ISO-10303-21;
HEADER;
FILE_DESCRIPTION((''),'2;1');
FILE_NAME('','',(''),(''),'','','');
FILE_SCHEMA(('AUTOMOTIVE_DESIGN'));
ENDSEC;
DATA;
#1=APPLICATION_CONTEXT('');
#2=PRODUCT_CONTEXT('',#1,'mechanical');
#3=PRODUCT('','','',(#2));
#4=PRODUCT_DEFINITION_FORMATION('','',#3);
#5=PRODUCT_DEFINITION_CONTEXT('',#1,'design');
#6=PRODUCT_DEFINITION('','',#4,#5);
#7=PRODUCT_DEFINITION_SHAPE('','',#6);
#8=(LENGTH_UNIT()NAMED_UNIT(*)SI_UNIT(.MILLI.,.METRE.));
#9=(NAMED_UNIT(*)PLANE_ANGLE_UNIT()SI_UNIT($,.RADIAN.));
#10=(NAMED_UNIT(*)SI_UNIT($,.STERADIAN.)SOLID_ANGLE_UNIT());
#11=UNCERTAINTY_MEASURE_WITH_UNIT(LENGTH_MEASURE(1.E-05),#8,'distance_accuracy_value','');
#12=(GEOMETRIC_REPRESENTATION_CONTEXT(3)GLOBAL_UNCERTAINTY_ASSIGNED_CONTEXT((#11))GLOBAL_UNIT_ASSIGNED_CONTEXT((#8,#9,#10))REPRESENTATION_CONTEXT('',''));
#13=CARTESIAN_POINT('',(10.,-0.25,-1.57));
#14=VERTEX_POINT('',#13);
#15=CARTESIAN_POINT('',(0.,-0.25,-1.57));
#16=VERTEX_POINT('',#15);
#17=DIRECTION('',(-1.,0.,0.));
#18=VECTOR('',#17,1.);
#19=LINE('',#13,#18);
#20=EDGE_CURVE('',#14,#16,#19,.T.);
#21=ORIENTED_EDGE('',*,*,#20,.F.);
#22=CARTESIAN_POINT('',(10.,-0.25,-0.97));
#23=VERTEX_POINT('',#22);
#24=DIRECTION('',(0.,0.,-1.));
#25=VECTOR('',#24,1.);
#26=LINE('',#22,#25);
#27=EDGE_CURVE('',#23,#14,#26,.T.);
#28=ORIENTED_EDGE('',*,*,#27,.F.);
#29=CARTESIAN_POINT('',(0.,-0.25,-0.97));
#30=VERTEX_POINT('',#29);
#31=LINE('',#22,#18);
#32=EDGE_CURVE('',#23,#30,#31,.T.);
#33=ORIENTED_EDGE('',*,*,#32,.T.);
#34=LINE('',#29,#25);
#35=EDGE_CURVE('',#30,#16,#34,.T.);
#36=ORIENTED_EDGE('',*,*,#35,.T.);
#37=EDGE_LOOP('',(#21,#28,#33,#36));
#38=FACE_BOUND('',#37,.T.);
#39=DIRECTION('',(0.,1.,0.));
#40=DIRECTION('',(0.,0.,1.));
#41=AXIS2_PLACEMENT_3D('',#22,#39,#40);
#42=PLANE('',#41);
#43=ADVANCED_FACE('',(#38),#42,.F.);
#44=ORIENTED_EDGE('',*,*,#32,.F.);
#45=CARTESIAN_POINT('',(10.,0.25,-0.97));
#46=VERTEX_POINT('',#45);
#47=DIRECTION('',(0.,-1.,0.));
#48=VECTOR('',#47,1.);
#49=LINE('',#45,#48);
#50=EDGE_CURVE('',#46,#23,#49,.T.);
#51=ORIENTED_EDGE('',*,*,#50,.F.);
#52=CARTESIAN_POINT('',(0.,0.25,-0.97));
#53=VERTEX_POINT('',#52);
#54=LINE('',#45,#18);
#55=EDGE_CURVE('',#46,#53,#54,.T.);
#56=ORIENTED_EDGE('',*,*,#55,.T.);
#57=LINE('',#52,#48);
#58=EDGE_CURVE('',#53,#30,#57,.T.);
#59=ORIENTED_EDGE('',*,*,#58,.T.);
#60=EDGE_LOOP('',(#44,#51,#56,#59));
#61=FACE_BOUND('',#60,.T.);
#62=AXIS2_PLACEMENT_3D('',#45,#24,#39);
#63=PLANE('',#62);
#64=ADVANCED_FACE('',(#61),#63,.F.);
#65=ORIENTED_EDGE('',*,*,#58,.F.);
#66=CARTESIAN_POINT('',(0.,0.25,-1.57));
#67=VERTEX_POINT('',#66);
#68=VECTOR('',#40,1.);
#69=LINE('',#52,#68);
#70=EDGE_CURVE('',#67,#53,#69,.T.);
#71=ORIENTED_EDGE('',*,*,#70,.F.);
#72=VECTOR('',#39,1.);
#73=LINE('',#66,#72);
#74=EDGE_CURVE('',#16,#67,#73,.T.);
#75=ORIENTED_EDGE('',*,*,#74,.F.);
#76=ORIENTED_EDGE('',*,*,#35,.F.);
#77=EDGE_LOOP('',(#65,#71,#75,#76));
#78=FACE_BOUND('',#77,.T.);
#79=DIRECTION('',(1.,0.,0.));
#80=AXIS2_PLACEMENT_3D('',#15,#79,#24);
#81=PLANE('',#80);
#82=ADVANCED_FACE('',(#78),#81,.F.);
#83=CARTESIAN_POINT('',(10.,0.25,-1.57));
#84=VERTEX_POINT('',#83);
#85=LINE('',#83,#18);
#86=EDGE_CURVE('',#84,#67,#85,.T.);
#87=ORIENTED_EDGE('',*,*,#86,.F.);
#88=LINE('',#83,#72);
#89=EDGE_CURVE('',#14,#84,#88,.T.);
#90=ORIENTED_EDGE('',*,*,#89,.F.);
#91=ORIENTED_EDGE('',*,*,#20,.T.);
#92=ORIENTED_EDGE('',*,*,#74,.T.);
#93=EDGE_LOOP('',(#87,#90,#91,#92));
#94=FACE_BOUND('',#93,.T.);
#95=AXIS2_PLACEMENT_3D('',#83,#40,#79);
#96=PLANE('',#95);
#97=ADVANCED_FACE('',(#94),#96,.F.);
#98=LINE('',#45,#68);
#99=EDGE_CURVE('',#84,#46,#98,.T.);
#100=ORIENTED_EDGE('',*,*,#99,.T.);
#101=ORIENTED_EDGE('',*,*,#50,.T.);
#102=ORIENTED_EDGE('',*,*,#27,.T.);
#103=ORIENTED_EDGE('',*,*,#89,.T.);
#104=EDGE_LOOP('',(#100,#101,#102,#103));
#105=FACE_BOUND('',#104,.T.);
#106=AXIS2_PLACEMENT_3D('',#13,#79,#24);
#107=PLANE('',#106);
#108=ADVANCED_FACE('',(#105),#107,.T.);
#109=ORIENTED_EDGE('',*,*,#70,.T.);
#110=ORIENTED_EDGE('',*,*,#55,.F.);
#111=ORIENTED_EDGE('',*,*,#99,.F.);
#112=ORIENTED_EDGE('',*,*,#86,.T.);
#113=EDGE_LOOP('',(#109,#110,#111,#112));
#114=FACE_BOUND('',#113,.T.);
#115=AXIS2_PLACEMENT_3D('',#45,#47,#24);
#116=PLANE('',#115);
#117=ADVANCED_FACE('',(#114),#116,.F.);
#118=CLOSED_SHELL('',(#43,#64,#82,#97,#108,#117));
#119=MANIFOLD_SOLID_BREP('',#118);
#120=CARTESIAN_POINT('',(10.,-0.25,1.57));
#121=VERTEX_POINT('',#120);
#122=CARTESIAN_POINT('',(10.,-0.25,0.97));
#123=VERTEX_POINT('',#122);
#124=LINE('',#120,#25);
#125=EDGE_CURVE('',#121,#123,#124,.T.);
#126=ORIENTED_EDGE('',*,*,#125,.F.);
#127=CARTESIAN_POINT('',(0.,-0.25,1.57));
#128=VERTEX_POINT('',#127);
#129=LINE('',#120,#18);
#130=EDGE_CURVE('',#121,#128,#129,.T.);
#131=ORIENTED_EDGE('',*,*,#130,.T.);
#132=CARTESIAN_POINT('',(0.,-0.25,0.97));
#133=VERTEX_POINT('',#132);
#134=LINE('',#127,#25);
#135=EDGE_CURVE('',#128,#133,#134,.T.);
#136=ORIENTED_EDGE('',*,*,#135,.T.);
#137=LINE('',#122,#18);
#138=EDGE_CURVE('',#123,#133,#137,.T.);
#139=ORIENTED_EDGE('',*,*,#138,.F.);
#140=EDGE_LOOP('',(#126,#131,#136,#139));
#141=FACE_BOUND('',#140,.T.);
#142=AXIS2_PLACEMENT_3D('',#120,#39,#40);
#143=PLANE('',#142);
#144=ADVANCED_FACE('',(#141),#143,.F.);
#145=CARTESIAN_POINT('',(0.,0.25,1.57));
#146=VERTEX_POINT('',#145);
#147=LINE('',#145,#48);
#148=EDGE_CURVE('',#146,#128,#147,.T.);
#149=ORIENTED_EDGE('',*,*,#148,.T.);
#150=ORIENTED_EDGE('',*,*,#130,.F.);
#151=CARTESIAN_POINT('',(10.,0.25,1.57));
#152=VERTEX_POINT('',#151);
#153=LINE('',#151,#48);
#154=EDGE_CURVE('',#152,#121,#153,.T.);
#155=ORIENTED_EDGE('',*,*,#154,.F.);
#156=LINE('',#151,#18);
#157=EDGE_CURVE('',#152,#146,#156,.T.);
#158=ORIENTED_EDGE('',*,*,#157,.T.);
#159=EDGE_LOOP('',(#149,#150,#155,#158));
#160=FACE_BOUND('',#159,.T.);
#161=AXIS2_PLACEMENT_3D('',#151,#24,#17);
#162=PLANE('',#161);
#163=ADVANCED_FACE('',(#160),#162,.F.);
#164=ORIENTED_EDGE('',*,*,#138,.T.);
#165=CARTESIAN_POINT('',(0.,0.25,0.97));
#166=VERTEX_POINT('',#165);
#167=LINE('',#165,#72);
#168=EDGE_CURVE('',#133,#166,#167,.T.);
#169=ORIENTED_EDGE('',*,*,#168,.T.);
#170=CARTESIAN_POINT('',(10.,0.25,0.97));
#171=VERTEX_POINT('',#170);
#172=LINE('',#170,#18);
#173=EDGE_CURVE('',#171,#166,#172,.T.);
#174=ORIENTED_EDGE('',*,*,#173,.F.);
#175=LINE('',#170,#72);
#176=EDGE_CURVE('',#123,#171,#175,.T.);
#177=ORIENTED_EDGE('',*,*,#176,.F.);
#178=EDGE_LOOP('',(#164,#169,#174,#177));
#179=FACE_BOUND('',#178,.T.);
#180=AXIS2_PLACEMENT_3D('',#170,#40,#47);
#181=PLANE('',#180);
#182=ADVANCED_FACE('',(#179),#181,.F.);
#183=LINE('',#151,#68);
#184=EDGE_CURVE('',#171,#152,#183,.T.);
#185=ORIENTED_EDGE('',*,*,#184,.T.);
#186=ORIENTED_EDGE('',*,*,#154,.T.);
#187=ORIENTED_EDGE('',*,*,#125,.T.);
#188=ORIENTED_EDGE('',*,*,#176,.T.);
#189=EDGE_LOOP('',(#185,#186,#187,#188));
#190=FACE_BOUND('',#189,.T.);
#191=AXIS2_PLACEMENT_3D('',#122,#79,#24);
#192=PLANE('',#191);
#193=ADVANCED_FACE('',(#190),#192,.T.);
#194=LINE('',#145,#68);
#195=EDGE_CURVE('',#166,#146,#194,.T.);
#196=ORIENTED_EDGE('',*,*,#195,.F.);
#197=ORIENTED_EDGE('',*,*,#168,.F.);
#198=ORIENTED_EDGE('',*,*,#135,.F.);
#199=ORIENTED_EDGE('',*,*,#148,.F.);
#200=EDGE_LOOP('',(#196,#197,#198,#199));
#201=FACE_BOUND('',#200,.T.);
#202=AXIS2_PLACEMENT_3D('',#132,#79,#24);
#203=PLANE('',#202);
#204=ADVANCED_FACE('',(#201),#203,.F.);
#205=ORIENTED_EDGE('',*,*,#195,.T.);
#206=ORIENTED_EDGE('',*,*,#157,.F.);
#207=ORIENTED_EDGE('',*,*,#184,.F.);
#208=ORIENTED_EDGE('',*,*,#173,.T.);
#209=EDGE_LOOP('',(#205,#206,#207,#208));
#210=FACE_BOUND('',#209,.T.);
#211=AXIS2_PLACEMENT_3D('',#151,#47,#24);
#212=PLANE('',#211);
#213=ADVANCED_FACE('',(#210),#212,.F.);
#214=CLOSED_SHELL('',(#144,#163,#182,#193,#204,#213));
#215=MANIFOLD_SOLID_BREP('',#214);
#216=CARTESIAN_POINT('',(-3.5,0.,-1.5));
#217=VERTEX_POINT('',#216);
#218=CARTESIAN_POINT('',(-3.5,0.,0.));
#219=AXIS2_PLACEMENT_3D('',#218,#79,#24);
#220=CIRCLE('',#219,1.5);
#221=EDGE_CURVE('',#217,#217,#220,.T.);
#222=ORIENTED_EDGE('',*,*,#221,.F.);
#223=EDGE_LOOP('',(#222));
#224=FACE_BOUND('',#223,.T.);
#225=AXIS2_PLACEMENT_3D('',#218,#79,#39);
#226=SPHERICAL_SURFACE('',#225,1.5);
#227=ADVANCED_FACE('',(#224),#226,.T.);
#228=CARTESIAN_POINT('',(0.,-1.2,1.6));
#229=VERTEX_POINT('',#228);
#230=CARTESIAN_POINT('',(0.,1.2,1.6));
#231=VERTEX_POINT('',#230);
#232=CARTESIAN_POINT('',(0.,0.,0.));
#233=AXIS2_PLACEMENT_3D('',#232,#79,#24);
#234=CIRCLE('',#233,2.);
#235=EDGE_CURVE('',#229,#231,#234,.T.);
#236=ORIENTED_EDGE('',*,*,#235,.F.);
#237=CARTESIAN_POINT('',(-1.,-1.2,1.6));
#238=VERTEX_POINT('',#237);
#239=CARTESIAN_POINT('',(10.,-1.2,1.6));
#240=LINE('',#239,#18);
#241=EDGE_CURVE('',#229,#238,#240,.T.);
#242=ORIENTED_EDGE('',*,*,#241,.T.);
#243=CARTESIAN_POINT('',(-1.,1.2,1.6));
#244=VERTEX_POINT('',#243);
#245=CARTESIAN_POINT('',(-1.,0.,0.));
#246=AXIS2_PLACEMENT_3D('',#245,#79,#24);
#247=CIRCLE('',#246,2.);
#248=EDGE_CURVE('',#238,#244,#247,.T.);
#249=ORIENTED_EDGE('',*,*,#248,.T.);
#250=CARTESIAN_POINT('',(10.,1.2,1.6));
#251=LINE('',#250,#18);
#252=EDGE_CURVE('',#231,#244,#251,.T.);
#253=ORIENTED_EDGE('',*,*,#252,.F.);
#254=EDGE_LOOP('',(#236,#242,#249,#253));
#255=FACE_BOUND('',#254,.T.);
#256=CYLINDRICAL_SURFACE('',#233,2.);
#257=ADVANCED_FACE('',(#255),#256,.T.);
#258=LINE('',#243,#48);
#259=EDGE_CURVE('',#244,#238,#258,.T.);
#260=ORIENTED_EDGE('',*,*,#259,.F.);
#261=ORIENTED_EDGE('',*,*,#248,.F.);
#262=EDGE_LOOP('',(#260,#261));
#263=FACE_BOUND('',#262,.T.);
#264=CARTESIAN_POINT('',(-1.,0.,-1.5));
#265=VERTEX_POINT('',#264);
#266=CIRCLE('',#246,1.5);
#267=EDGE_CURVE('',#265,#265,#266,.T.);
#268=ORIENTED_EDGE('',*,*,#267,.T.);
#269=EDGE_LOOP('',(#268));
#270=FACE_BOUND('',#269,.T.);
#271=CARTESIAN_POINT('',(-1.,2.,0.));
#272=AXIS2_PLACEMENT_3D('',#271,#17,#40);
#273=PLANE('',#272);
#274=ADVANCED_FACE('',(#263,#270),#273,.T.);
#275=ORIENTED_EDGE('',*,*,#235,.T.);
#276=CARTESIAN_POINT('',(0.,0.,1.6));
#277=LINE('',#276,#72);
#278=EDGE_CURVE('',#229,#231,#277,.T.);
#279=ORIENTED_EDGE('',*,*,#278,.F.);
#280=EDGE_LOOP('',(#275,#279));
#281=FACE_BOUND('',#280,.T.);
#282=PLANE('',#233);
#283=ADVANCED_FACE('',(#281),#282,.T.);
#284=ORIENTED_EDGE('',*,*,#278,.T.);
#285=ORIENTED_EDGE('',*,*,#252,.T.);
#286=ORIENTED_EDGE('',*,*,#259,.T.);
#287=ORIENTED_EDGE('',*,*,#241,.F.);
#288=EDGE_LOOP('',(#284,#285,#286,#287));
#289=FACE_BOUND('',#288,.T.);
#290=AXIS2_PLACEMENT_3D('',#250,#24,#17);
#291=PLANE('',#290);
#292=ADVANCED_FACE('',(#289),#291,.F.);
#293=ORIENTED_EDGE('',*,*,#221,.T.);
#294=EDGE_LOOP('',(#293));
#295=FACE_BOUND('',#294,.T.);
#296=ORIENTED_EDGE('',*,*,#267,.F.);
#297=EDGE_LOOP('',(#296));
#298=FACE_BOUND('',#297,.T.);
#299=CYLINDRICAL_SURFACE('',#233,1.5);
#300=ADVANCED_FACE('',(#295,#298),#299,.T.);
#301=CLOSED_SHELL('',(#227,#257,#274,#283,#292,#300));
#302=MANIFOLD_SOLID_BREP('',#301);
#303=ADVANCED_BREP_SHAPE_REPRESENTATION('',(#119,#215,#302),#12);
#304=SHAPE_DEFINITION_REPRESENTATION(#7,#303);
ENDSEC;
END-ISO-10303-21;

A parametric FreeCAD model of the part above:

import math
import FreeCAD as App
import Part
import Sketcher

V = App.Vector
Q = App.Units.Quantity


def add_polygon(sketch, points):
    """Adds a closed chain of lines whose ends are joined by coincident constraints."""
    first, n = sketch.GeometryCount, len(points)
    for a, b in zip(points, points[1:] + points[:1]):
        sketch.addGeometry(Part.LineSegment(App.Vector(*a, 0), App.Vector(*b, 0)), False)
    for i in range(n):
        sketch.addConstraint(Sketcher.Constraint("Coincident", first + i, 2, first + (i + 1) % n, 1))

doc = App.newDocument("Part")
body = doc.addObject("PartDesign::Body", "Body")

# Sketch on XY plane
sketch1 = doc.addObject("Sketcher::SketchObject", "Sketch")
body.addObject(sketch1)
sketch1.AttachmentSupport = (doc.XY_Plane, [""])
sketch1.MapMode = "FlatFace"
sketch1.addGeometry(Part.LineSegment(V(0, 0, 0), V(0, 2, 0)), False)
sketch1.addGeometry(Part.LineSegment(V(0, 2, 0), V(-1, 2, 0)), False)
sketch1.addGeometry(Part.LineSegment(V(-1, 2, 0), V(-1, 1.5, 0)), False)
sketch1.addGeometry(Part.LineSegment(V(-1, 1.5, 0), V(-3.5, 1.5, 0)), False)
sketch1.addGeometry(Part.ArcOfCircle(Part.Circle(V(-3.5, 0, 0), V(0, 0, 1), 1.5), math.radians(90), math.radians(180)), False)
sketch1.addGeometry(Part.LineSegment(V(-5, 0, 0), V(0, 0, 0)), False)
sketch1.addConstraint(Sketcher.Constraint("Coincident", 0, 2, 1, 1))
sketch1.addConstraint(Sketcher.Constraint("Coincident", 1, 2, 2, 1))
sketch1.addConstraint(Sketcher.Constraint("Coincident", 2, 2, 3, 1))
sketch1.addConstraint(Sketcher.Constraint("Tangent", 3, 2, 4, 1))
sketch1.addConstraint(Sketcher.Constraint("Coincident", 4, 2, 5, 1))
sketch1.addConstraint(Sketcher.Constraint("Coincident", 5, 2, 0, 1))
sketch1.addConstraint(Sketcher.Constraint("Vertical", 0))
sketch1.addConstraint(Sketcher.Constraint("Horizontal", 1))
sketch1.addConstraint(Sketcher.Constraint("Vertical", 2))
sketch1.addConstraint(Sketcher.Constraint("Horizontal", 3))
sketch1.addConstraint(Sketcher.Constraint("Horizontal", 5))
sketch1.addConstraint(Sketcher.Constraint("Coincident", 5, 2, -1, 1))
sketch1.addConstraint(Sketcher.Constraint("PointOnObject", 4, 3, -1))
sketch1.addConstraint(Sketcher.Constraint("Radius", 4, Q("1.5 mm")))
sketch1.addConstraint(Sketcher.Constraint("DistanceX", 1, 2, 1, 1, Q("1 mm")))
sketch1.addConstraint(Sketcher.Constraint("DistanceX", 5, 1, 5, 2, Q("5 mm")))
sketch1.addConstraint(Sketcher.Constraint("DistanceY", 0, 1, 0, 2, Q("2 mm")))
revolution = doc.addObject("PartDesign::Revolution", "Revolution")
body.addObject(revolution)
revolution.Profile = sketch1
revolution.ReferenceAxis = (sketch1, ["H_Axis"])
revolution.Angle = 360

# Sketch on YZ plane
sketch2 = doc.addObject("Sketcher::SketchObject", "Sketch001")
body.addObject(sketch2)
sketch2.AttachmentSupport = (doc.YZ_Plane, [""])
sketch2.MapMode = "FlatFace"
sketch2.AttachmentOffset = App.Placement(V(0, 0, -1), App.Rotation())
add_polygon(sketch2, [(1.2, 1.6), (-1.2, 1.6), (-1.2, 2.4), (1.2, 2.4)])  # lines 0-3
sketch2.addConstraint(Sketcher.Constraint("Horizontal", 0))
sketch2.addConstraint(Sketcher.Constraint("Vertical", 1))
sketch2.addConstraint(Sketcher.Constraint("Horizontal", 2))
sketch2.addConstraint(Sketcher.Constraint("Vertical", 3))
sketch2.addConstraint(Sketcher.Constraint("DistanceX", 0, 2, 0, 1, Q("2.4 mm")))
sketch2.addConstraint(Sketcher.Constraint("DistanceY", 1, 1, 1, 2, Q("0.8 mm")))
sketch2.addConstraint(Sketcher.Constraint("DistanceX", 0, 2, -1, 1, Q("1.2 mm")))
sketch2.addConstraint(Sketcher.Constraint("DistanceY", -1, 1, 0, 2, Q("1.6 mm")))
pocket1 = doc.addObject("PartDesign::Pocket", "Pocket")
body.addObject(pocket1)
pocket1.Profile = sketch2
pocket1.Type = "ThroughAll"
pocket1.Reversed = True
body2 = doc.addObject("PartDesign::Body", "Body001")

# Sketch on YZ plane
sketch3 = doc.addObject("Sketcher::SketchObject", "Sketch002")
body2.addObject(sketch3)
sketch3.AttachmentSupport = (doc.getObject("YZ_Plane001"), [""])
sketch3.MapMode = "FlatFace"
add_polygon(sketch3, [(0.25, 1.57), (-0.25, 1.57), (-0.25, 0.97), (0.25, 0.97)])  # lines 0-3
sketch3.addConstraint(Sketcher.Constraint("Horizontal", 0))
sketch3.addConstraint(Sketcher.Constraint("Vertical", 1))
sketch3.addConstraint(Sketcher.Constraint("Horizontal", 2))
sketch3.addConstraint(Sketcher.Constraint("Vertical", 3))
sketch3.addConstraint(Sketcher.Constraint("DistanceX", 0, 2, 0, 1, Q("0.5 mm")))
sketch3.addConstraint(Sketcher.Constraint("DistanceY", 1, 2, 1, 1, Q("0.6 mm")))
sketch3.addConstraint(Sketcher.Constraint("DistanceX", 0, 2, -1, 1, Q("0.25 mm")))
sketch3.addConstraint(Sketcher.Constraint("DistanceY", -1, 1, 0, 2, Q("1.57 mm")))
pad1 = doc.addObject("PartDesign::Pad", "Pad")
body2.addObject(pad1)
pad1.Profile = sketch3
pad1.Length = 10
body3 = doc.addObject("PartDesign::Body", "Body002")

# Sketch on YZ plane
sketch4 = doc.addObject("Sketcher::SketchObject", "Sketch003")
body3.addObject(sketch4)
sketch4.AttachmentSupport = (doc.getObject("YZ_Plane002"), [""])
sketch4.MapMode = "FlatFace"
add_polygon(sketch4, [(0.25, -0.97), (-0.25, -0.97), (-0.25, -1.57), (0.25, -1.57)])  # lines 0-3
sketch4.addConstraint(Sketcher.Constraint("Horizontal", 0))
sketch4.addConstraint(Sketcher.Constraint("Vertical", 1))
sketch4.addConstraint(Sketcher.Constraint("Horizontal", 2))
sketch4.addConstraint(Sketcher.Constraint("Vertical", 3))
sketch4.addConstraint(Sketcher.Constraint("DistanceX", 0, 2, 0, 1, Q("0.5 mm")))
sketch4.addConstraint(Sketcher.Constraint("DistanceY", 1, 2, 1, 1, Q("0.6 mm")))
sketch4.addConstraint(Sketcher.Constraint("DistanceX", 0, 2, -1, 1, Q("0.25 mm")))
sketch4.addConstraint(Sketcher.Constraint("DistanceY", 0, 2, -1, 1, Q("0.97 mm")))
pad2 = doc.addObject("PartDesign::Pad", "Pad001")
body3.addObject(pad2)
pad2.Profile = sketch4
pad2.Length = 10

doc.recompute()
